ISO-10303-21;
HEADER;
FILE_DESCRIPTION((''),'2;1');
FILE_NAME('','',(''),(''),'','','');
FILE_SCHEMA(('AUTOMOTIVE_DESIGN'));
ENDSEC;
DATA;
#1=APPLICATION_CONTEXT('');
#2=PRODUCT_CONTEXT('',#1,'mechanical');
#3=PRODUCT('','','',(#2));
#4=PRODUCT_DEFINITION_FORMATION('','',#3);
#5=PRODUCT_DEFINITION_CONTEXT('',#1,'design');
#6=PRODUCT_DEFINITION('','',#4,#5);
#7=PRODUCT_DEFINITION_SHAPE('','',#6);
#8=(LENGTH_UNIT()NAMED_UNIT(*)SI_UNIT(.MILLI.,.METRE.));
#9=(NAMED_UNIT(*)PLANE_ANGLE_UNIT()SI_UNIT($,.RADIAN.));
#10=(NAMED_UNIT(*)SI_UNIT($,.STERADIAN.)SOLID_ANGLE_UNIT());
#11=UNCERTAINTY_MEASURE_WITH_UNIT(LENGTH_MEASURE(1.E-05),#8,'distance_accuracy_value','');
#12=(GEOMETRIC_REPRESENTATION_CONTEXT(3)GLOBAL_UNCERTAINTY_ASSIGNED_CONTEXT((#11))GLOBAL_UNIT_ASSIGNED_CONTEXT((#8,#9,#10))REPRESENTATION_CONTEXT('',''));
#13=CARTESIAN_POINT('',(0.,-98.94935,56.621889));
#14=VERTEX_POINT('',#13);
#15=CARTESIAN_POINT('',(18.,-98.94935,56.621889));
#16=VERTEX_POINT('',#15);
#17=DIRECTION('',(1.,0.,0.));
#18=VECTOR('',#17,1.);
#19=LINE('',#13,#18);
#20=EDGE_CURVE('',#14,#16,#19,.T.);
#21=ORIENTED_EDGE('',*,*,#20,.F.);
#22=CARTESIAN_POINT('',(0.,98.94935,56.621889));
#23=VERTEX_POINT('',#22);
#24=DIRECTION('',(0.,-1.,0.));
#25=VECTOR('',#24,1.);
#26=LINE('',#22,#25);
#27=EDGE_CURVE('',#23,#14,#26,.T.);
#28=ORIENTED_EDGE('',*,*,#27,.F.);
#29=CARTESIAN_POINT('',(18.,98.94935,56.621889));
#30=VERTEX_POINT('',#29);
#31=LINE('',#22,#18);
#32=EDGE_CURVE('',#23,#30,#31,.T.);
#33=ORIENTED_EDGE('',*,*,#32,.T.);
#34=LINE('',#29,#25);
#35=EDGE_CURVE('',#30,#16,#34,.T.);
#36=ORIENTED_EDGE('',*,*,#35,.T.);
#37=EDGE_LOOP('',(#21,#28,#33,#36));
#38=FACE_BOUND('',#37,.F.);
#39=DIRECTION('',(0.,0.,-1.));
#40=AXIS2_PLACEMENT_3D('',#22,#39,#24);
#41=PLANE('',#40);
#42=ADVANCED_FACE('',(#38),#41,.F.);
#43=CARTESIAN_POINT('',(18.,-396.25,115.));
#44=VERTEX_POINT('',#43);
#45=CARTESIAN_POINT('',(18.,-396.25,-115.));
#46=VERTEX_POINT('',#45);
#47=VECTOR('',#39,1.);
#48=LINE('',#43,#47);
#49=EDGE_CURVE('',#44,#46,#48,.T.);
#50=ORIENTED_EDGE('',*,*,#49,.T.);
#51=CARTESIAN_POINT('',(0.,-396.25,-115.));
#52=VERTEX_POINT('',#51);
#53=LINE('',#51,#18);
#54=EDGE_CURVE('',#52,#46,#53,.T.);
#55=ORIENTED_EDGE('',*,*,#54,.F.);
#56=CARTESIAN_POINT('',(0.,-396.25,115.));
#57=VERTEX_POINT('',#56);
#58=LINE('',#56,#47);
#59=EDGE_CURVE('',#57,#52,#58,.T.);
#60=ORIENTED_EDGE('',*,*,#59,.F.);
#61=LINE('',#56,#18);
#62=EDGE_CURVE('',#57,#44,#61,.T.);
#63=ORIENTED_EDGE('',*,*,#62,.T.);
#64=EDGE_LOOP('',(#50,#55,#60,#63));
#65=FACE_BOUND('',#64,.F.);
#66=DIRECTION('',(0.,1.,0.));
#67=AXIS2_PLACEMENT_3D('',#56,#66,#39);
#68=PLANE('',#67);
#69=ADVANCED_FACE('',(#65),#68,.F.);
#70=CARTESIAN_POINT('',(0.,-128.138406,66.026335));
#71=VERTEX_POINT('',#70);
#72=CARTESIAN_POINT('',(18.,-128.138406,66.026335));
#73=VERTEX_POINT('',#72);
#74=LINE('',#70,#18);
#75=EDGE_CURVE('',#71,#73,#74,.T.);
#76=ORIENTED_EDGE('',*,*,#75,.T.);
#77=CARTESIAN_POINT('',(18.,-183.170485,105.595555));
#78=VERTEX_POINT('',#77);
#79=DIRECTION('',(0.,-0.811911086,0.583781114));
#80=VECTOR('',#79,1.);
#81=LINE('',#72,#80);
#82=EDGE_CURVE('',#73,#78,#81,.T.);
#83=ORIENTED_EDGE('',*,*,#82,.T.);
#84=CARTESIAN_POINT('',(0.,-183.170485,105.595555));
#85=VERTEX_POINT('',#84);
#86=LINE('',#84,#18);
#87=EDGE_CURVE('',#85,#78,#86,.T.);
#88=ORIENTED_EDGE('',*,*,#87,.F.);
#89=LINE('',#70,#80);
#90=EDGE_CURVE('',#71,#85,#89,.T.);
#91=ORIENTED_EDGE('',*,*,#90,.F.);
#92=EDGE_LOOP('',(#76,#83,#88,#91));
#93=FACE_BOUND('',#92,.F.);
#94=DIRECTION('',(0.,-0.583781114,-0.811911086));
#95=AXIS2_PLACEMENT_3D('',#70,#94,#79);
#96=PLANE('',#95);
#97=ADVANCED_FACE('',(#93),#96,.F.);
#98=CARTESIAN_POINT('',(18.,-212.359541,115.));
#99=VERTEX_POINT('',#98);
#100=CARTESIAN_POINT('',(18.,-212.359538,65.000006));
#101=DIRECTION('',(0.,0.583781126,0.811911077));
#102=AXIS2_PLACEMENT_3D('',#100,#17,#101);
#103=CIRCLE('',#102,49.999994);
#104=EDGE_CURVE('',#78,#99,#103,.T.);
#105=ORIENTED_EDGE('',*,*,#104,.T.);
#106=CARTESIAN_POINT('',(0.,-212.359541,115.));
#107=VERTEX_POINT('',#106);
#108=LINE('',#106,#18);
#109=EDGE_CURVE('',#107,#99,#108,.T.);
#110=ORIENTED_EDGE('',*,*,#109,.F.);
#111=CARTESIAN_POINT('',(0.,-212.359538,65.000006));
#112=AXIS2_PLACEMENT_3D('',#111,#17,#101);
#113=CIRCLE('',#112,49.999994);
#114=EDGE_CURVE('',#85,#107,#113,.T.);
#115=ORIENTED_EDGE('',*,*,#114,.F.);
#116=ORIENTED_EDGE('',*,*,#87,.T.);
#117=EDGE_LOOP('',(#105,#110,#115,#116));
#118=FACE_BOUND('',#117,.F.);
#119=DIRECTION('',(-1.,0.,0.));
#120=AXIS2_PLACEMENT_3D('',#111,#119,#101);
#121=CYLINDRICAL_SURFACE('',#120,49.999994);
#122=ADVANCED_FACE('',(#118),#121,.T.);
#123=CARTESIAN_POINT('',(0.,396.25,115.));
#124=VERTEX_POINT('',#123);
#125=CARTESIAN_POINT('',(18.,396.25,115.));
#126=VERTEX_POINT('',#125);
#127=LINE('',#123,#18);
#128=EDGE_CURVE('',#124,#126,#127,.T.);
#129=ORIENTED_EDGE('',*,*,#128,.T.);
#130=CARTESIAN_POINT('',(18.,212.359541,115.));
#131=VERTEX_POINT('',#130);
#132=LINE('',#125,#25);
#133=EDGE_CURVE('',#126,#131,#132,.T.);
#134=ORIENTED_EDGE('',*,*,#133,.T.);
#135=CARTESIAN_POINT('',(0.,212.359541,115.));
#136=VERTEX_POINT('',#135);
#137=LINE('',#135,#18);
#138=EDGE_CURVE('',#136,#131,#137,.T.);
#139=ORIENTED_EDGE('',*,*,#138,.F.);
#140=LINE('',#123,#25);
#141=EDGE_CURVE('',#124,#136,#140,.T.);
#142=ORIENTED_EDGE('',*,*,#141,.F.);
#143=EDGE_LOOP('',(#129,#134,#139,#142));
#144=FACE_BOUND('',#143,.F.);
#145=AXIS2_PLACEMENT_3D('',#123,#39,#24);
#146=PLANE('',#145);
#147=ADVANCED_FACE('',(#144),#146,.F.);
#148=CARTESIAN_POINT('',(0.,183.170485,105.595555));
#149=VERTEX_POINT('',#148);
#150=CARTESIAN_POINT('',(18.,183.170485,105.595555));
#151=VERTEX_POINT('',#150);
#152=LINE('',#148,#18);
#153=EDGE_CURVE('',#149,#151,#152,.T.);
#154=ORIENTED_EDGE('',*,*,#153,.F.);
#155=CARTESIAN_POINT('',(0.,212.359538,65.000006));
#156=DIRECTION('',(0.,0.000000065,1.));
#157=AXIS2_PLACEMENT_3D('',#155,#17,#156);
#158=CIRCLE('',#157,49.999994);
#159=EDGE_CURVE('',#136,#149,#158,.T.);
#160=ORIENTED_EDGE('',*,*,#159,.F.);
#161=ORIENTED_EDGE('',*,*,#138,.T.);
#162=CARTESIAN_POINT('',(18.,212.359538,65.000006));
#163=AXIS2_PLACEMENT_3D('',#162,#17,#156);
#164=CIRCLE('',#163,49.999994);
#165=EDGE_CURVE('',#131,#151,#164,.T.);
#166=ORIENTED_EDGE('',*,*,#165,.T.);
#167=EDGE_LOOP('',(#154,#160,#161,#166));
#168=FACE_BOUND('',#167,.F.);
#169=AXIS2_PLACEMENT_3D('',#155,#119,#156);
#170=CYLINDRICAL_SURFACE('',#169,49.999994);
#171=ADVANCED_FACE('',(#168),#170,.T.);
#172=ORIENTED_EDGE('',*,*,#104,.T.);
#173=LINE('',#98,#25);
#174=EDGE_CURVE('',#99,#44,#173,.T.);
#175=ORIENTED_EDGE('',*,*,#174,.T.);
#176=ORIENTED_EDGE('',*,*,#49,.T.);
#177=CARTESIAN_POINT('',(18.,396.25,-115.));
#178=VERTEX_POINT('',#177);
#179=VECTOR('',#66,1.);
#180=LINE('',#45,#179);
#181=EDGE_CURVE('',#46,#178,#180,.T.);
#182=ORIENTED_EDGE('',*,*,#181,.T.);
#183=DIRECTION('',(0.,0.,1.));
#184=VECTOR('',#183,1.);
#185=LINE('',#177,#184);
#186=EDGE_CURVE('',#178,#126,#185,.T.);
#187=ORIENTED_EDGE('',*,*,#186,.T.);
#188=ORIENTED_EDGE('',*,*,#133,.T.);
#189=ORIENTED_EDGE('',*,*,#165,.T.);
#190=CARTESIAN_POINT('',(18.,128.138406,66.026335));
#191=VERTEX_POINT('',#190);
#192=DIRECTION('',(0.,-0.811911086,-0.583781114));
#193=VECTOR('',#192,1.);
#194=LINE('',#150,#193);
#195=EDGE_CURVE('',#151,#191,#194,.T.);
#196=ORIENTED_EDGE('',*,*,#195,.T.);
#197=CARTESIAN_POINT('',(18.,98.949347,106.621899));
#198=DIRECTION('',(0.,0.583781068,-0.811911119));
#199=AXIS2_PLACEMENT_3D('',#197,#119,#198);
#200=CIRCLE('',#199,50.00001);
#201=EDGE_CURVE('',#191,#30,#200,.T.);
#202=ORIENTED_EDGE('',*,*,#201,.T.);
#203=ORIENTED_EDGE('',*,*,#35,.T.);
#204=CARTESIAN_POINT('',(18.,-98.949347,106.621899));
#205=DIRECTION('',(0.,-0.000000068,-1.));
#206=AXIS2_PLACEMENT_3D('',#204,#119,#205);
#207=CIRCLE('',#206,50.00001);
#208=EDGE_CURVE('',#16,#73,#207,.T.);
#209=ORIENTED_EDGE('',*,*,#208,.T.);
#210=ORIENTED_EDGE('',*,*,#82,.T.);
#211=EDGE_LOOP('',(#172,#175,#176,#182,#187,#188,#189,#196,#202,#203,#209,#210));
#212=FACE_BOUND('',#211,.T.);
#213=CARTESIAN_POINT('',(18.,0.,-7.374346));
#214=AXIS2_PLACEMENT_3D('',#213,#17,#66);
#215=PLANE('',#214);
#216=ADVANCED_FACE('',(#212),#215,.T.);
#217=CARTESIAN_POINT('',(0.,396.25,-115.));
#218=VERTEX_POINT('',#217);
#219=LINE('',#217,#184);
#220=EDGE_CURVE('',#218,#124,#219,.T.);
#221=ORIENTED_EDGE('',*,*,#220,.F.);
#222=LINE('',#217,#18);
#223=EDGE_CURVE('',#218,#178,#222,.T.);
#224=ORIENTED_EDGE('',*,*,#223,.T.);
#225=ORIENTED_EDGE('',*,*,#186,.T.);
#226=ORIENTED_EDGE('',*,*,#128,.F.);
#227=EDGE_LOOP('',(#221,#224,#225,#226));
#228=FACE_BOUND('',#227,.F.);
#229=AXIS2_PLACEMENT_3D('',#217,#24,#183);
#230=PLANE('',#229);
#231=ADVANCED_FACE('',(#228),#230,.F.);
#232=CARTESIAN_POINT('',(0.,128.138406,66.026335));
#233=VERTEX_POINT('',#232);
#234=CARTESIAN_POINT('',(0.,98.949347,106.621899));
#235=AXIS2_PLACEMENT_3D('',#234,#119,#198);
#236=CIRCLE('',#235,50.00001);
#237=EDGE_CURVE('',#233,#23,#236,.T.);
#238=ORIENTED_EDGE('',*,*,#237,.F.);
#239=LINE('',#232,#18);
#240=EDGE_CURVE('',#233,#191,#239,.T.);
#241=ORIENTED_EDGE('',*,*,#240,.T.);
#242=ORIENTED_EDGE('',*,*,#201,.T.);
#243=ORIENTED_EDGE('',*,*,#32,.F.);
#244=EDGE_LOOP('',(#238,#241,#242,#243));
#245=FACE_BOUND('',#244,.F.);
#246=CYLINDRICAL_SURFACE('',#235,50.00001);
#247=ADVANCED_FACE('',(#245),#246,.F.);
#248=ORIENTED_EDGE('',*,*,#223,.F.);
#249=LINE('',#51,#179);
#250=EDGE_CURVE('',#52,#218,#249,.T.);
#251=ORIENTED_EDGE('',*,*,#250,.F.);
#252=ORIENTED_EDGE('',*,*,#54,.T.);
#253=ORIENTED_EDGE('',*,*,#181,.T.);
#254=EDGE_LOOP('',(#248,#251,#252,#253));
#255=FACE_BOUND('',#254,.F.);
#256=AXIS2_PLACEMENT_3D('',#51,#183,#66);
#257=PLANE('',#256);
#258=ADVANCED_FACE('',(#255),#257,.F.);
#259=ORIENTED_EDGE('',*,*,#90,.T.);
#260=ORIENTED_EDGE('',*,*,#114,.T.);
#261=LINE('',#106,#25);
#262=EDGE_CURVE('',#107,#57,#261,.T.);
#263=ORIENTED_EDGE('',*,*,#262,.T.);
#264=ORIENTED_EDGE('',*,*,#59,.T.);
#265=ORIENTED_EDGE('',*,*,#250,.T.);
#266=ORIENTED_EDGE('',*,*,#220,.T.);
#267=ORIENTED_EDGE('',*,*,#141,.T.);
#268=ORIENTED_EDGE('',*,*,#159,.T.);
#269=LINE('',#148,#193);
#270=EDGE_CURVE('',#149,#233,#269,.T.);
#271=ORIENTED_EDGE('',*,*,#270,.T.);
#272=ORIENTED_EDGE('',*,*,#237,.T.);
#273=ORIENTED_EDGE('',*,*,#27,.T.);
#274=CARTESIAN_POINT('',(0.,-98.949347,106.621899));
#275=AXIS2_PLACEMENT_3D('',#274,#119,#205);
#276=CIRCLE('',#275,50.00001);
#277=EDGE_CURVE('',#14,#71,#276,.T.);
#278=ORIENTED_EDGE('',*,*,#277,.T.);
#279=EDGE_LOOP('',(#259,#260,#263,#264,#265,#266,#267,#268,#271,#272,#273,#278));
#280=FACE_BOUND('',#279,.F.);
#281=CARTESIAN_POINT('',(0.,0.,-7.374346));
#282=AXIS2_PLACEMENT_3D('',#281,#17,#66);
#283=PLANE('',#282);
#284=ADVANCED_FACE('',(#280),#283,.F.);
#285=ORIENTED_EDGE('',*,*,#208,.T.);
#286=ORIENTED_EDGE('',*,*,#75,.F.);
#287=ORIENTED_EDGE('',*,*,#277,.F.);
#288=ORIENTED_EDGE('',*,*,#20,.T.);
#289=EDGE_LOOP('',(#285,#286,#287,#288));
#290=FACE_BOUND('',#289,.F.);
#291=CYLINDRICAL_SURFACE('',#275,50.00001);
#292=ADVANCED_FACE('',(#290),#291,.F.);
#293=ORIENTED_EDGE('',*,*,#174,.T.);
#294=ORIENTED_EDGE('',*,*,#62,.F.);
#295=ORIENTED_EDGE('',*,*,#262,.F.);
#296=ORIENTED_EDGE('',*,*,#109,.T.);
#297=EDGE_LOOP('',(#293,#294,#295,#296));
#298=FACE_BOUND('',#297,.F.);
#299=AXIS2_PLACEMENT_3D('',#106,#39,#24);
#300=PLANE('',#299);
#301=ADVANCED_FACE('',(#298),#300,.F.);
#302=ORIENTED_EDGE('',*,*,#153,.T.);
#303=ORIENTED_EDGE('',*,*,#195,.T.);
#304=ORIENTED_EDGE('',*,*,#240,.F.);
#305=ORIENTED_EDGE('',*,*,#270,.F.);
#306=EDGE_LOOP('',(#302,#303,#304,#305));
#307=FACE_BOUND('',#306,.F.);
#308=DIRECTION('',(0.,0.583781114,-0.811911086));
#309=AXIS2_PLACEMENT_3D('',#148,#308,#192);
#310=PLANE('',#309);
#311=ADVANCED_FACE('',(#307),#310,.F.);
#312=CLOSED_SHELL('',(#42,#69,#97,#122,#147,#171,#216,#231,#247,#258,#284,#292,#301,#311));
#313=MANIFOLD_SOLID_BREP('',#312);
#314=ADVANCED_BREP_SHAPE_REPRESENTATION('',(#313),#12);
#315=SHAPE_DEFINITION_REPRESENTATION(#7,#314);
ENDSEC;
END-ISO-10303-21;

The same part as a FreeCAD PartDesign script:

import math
import FreeCAD as App
import Part
import Sketcher

V = App.Vector

doc = App.newDocument("Part")
body = doc.addObject("PartDesign::Body", "Body")

# Sketch on YZ plane
sketch1 = doc.addObject("Sketcher::SketchObject", "Sketch")
body.addObject(sketch1)
sketch1.AttachmentSupport = (doc.YZ_Plane, [""])
sketch1.MapMode = "FlatFace"
sketch1.addGeometry([
    Part.LineSegment(V(396, -115, 0), V(396, 115, 0)),  # 0
    Part.LineSegment(V(396, 115, 0), V(212, 115, 0)),  # 1
    Part.ArcOfCircle(Part.Circle(V(212, 65, 0), V(0, 0, 1), 50), math.radians(90), math.radians(126)),  # 2
    Part.LineSegment(V(183, 106, 0), V(128, 66, 0)),  # 3
    Part.ArcOfCircle(Part.Circle(V(99, 107, 0), V(0, 0, 1), 50), math.radians(-90), math.radians(-54)),  # 4
    Part.LineSegment(V(99, 57, 0), V(-99, 57, 0)),  # 5
    Part.ArcOfCircle(Part.Circle(V(-99, 107, 0), V(0, 0, 1), 50), math.radians(-126), math.radians(-90)),  # 6
    Part.LineSegment(V(-128, 66, 0), V(-183, 106, 0)),  # 7
    Part.ArcOfCircle(Part.Circle(V(-212, 65, 0), V(0, 0, 1), 50), math.radians(54), math.radians(90)),  # 8
    Part.LineSegment(V(-212, 115, 0), V(-396, 115, 0)),  # 9
    Part.LineSegment(V(-396, 115, 0), V(-396, -115, 0)),  # 10
    Part.LineSegment(V(-396, -115, 0), V(396, -115, 0)),  # 11
], False)
sketch1.addConstraint([
    Sketcher.Constraint("Coincident", 0, 2, 1, 1),
    Sketcher.Constraint("Tangent", 1, 2, 2, 1),
    Sketcher.Constraint("Tangent", 2, 2, 3, 1),
    Sketcher.Constraint("Tangent", 3, 2, 4, 2),
    Sketcher.Constraint("Tangent", 4, 1, 5, 1),
    Sketcher.Constraint("Tangent", 5, 2, 6, 2),
    Sketcher.Constraint("Tangent", 6, 1, 7, 1),
    Sketcher.Constraint("Tangent", 7, 2, 8, 1),
    Sketcher.Constraint("Tangent", 8, 2, 9, 1),
    Sketcher.Constraint("Coincident", 9, 2, 10, 1),
    Sketcher.Constraint("Coincident", 10, 2, 11, 1),
    Sketcher.Constraint("Coincident", 11, 2, 0, 1),
    Sketcher.Constraint("Vertical", 0),
    Sketcher.Constraint("Horizontal", 1),
    Sketcher.Constraint("Horizontal", 5),
    Sketcher.Constraint("Horizontal", 9),
    Sketcher.Constraint("Vertical", 10),
    Sketcher.Constraint("Horizontal", 11),
    Sketcher.Constraint("Equal", 4, 6),
    Sketcher.Constraint("Equal", 2, 8),
    Sketcher.Constraint("Symmetric", 0, 2, 10, 2, -1, 1),
    Sketcher.Constraint("Symmetric", 2, 3, 8, 3, -2),
    Sketcher.Constraint("Horizontal", 3, 2, 6, 1),
    Sketcher.Constraint("DistanceY", 0, 1, 0, 2, 230.0),
    Sketcher.Constraint("DistanceX", 11, 1, 11, 2, 792.5),
    Sketcher.Constraint("Radius", 4, 50.00001),
    Sketcher.Constraint("DistanceX", 5, 2, 5, 1, 197.8987),
    Sketcher.Constraint("Radius", 2, 49.999994),
    Sketcher.Constraint("DistanceX", 1, 2, 1, 1, 183.890459),
    Sketcher.Constraint("DistanceY", -1, 1, 4, 3, 106.621899),
])
pad1 = doc.addObject("PartDesign::Pad", "Pad")
body.addObject(pad1)
pad1.Profile = sketch1
pad1.Length = 18

doc.recompute()
